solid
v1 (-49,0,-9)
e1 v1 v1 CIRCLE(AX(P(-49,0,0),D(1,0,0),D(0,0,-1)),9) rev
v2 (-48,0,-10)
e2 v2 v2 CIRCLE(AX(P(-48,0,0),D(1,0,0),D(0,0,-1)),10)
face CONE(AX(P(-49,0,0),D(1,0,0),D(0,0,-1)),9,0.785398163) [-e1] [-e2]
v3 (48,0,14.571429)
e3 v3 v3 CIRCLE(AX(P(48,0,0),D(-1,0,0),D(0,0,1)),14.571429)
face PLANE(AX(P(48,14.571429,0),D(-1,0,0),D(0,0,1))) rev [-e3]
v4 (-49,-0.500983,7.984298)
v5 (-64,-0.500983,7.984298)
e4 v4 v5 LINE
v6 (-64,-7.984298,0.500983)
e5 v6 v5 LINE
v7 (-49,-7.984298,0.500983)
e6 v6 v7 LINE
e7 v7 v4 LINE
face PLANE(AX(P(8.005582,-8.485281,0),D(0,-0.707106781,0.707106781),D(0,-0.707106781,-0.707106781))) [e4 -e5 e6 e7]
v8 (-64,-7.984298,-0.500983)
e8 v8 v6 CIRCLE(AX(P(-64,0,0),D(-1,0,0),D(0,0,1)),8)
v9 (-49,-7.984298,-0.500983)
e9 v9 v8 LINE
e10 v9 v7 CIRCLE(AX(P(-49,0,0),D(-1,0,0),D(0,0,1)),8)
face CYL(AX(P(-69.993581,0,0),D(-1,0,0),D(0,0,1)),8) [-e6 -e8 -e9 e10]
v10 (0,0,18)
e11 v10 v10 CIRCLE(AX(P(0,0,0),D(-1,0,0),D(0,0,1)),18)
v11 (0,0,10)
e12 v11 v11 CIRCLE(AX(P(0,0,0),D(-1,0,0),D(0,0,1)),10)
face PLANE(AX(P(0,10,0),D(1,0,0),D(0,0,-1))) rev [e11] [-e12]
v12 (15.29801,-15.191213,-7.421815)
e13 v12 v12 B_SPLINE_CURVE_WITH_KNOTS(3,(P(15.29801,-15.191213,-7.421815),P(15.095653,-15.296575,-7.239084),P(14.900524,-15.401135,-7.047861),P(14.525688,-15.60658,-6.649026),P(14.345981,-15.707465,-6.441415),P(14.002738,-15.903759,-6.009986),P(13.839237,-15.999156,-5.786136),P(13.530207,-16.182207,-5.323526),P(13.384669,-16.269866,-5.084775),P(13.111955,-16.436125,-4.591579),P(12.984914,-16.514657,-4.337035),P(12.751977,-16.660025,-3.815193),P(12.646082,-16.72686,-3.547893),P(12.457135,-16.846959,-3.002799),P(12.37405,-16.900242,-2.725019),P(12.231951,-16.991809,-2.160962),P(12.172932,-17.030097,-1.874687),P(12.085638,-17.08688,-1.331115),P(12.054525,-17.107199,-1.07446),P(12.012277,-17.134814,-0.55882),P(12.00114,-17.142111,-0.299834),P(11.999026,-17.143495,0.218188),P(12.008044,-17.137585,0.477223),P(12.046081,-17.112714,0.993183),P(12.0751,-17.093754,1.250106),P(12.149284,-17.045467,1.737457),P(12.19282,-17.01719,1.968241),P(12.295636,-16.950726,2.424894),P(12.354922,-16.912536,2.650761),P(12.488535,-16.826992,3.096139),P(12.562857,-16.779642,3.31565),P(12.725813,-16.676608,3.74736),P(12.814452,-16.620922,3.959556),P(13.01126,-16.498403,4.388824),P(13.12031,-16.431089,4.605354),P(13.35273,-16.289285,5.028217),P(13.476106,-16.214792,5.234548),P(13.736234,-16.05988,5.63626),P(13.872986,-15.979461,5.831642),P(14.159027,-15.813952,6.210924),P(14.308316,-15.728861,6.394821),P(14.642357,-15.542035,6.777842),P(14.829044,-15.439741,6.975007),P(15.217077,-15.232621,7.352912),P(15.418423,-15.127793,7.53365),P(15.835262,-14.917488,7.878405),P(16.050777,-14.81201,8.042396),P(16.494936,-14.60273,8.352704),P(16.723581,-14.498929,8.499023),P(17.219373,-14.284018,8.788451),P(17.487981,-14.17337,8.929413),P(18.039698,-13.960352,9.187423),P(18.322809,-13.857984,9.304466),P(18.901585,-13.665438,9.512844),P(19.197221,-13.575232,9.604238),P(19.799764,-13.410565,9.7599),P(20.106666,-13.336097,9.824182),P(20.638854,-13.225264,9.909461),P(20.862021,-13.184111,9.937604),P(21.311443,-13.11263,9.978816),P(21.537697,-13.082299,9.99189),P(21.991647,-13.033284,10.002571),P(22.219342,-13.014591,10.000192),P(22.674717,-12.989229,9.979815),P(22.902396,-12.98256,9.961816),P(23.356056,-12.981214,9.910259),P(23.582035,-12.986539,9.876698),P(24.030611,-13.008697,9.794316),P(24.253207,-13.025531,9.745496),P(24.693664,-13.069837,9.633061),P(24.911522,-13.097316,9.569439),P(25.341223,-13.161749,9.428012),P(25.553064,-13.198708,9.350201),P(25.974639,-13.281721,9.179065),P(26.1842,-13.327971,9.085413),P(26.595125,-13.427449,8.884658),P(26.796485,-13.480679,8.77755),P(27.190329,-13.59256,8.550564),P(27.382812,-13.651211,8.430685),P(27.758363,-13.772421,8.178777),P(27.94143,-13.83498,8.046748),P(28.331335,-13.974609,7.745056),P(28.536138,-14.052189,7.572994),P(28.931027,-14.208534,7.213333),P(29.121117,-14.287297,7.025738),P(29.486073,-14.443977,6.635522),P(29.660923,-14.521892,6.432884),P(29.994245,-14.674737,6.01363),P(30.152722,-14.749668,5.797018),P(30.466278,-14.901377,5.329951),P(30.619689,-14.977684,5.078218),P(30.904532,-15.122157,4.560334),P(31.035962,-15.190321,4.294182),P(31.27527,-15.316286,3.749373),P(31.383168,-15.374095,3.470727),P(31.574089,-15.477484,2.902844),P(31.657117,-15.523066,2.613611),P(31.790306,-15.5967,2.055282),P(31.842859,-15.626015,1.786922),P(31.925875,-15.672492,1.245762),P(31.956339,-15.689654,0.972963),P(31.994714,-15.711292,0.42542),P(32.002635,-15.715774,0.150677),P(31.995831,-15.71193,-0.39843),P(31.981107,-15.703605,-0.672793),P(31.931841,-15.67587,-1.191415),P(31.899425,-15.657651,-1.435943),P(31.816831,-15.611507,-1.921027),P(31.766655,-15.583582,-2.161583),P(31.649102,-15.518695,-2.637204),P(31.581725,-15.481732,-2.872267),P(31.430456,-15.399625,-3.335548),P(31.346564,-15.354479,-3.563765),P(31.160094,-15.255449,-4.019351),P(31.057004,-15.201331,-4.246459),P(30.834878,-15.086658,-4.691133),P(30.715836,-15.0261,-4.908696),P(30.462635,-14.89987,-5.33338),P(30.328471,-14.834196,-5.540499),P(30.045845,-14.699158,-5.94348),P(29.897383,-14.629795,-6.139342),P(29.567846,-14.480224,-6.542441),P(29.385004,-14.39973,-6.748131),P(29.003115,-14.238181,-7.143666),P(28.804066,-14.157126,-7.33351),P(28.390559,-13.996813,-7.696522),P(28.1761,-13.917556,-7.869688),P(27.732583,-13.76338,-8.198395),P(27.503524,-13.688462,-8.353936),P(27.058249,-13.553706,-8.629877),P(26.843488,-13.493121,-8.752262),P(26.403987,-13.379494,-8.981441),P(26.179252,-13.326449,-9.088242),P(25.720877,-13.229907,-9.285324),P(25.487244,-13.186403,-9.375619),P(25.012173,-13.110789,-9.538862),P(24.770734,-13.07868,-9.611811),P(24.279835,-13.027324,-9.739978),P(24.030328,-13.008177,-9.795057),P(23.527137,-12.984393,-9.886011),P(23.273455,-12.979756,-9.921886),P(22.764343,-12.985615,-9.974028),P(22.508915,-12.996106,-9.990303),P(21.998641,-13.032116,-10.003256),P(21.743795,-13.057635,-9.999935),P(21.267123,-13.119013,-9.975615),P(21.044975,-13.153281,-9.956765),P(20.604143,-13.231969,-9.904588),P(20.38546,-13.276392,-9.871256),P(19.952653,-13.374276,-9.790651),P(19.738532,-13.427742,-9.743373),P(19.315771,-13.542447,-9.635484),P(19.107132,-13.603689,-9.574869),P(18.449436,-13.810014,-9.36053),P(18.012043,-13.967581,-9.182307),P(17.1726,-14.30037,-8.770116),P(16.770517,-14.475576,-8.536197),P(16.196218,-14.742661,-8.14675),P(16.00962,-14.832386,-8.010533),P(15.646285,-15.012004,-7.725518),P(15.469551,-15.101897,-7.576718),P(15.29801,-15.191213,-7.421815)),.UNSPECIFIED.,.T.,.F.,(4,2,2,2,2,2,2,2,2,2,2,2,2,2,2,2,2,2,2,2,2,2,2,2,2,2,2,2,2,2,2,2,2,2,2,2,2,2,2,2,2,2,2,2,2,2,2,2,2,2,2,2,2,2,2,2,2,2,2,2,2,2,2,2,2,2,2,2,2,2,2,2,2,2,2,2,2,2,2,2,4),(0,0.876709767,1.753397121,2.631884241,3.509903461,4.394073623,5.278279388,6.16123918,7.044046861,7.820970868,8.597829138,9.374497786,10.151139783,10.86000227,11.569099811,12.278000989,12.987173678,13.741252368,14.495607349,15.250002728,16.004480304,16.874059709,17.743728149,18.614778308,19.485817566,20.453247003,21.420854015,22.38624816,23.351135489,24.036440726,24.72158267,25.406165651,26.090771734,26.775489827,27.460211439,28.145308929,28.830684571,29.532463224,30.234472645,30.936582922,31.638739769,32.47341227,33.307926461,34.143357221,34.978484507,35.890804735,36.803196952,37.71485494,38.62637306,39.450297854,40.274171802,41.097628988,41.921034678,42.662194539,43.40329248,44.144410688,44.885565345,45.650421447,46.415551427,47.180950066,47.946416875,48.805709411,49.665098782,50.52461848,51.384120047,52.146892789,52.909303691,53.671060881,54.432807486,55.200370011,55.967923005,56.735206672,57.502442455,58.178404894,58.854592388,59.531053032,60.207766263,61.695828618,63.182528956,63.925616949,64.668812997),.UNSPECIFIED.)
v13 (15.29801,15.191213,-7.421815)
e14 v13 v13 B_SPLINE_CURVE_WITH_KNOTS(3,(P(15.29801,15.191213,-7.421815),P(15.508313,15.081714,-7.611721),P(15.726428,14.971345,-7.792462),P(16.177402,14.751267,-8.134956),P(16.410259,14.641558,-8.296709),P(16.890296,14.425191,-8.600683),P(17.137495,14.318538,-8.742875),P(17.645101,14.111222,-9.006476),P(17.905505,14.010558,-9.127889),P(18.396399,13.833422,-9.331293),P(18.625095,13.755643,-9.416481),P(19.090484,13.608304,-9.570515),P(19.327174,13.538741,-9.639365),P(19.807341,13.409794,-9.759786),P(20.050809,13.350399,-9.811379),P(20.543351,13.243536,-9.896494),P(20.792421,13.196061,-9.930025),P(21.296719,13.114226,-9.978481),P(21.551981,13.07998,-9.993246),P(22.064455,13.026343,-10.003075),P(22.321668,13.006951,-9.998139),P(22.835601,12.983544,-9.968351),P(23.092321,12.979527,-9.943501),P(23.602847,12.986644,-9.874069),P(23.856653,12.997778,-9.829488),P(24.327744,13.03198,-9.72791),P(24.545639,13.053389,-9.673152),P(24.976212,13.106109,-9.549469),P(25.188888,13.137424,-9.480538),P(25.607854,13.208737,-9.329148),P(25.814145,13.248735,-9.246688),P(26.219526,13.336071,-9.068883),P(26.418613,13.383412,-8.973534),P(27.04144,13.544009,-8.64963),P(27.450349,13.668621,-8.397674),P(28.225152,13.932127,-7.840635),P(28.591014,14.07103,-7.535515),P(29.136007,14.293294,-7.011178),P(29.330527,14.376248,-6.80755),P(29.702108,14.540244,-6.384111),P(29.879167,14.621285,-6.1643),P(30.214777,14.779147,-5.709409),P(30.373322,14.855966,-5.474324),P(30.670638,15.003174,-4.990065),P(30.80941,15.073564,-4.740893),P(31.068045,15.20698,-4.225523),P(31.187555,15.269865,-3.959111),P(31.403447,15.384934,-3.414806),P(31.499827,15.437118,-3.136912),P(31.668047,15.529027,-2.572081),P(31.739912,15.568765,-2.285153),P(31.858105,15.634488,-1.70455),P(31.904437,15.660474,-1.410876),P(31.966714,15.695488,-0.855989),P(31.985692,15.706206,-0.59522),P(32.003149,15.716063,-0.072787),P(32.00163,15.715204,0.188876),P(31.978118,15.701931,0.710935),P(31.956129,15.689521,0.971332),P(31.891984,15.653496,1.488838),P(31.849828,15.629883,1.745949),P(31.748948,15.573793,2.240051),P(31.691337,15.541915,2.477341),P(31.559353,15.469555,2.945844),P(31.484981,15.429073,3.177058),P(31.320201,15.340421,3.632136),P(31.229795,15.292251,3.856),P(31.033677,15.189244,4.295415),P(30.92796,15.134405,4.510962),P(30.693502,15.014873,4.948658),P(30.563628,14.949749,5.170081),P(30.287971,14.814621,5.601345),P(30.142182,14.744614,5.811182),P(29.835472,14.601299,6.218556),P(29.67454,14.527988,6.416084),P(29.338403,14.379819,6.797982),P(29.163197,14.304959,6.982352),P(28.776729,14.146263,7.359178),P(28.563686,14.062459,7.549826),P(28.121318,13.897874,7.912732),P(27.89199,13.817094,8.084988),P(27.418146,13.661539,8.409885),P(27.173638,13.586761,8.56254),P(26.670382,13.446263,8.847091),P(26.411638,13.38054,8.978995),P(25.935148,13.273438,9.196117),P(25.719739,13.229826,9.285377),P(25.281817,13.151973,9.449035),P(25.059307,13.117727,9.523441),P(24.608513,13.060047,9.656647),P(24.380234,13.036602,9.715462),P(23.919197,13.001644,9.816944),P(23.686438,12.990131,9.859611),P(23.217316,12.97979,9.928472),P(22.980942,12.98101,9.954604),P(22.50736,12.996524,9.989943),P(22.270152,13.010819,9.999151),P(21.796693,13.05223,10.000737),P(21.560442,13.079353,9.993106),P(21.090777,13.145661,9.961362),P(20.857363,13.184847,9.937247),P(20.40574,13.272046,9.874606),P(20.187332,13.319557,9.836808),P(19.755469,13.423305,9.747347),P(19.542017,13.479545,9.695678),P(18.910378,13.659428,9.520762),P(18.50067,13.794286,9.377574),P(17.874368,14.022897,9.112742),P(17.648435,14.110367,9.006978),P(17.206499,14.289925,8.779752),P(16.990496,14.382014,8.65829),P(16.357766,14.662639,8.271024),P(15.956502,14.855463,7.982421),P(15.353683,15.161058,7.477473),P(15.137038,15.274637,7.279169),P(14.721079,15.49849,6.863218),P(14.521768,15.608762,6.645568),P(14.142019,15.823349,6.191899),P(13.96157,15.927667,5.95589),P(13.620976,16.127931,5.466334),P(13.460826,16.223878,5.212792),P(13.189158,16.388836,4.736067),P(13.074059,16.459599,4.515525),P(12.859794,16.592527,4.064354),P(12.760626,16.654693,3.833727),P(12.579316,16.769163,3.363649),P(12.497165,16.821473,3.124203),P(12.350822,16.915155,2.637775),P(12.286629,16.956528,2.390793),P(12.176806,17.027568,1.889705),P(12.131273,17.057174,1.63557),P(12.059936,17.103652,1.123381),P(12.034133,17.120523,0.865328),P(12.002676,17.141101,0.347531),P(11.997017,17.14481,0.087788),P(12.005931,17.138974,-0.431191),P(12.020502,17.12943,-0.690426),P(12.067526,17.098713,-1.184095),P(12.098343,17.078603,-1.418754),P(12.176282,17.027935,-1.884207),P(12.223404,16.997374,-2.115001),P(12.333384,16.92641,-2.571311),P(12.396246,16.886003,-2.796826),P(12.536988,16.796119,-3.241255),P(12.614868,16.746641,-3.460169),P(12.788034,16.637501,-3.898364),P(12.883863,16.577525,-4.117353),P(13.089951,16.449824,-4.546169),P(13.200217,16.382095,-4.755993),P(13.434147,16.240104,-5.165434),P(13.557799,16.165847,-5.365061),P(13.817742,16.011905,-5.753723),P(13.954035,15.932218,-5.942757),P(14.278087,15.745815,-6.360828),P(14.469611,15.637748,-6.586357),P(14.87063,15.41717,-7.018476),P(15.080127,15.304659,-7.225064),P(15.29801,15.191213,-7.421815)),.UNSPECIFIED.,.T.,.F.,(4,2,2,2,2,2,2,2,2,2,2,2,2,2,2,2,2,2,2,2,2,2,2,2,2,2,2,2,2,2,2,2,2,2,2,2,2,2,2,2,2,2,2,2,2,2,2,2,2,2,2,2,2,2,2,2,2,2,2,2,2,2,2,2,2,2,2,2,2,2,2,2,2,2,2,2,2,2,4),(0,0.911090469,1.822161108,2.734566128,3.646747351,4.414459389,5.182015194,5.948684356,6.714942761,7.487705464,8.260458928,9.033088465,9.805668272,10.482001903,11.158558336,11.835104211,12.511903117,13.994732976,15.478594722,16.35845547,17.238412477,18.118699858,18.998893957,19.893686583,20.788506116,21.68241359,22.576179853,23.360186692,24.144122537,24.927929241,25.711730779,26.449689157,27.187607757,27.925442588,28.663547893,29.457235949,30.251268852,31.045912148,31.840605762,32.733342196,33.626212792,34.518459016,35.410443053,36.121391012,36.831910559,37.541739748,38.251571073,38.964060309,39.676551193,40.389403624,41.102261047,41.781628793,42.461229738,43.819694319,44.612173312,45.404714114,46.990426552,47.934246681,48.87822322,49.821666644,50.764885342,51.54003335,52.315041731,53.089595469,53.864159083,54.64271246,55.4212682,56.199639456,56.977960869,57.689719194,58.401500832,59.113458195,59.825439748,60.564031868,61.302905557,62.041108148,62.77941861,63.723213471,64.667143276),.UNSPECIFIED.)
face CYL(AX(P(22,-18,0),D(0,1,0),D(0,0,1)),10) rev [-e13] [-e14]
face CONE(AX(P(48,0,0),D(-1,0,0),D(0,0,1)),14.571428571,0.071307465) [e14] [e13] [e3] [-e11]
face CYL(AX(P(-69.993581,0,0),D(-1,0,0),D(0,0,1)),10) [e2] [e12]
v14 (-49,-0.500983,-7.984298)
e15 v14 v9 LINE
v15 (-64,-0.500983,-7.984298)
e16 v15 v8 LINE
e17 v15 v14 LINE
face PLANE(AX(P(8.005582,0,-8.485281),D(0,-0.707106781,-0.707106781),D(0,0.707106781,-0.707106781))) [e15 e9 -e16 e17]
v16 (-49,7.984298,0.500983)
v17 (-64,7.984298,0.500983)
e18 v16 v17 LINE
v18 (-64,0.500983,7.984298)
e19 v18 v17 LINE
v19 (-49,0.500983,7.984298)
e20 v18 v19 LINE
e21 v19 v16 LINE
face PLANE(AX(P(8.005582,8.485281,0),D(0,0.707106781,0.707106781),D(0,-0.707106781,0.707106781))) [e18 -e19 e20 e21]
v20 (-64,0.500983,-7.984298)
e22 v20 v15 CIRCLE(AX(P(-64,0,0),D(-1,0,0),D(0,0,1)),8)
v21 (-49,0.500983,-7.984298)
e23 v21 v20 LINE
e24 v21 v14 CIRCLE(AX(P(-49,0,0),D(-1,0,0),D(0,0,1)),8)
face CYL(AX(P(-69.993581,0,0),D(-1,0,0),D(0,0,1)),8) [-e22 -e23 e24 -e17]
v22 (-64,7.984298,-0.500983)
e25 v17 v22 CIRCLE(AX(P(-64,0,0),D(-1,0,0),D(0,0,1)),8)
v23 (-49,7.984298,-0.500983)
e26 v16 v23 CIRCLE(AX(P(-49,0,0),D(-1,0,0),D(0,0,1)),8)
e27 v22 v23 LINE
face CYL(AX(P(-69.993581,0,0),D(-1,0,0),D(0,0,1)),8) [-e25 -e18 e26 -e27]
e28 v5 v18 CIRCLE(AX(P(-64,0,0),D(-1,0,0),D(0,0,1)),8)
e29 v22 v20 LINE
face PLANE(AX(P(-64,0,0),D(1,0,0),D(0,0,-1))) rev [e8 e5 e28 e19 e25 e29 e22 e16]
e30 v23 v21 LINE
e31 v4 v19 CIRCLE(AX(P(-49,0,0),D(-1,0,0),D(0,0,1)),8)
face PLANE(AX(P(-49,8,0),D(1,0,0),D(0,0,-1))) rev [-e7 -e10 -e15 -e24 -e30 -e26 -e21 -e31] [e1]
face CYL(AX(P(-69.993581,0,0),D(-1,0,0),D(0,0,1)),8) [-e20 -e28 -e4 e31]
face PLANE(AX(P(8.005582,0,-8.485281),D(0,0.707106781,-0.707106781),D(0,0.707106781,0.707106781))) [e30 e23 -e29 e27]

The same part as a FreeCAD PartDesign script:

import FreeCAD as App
import Part
import Sketcher

V = App.Vector
Q = App.Units.Quantity


def edges_at(feature, points):
    """Names of the edges that pass closest to the given points."""
    edges = feature.Shape.Edges
    near = lambda p: min(range(len(edges)), key=lambda i: edges[i].distToShape(Part.Vertex(*p))[0])
    return sorted({f"Edge{near(p) + 1}" for p in points})

doc = App.newDocument("Part")
body = doc.addObject("PartDesign::Body", "Body")

# Sketch on XY plane
sketch1 = body.newObject("Sketcher::SketchObject", "Sketch")
sketch1.AttachmentSupport = (doc.getObject("XY_Plane"), [""])
sketch1.MapMode = "FlatFace"
sketch1.addGeometry([
    Part.LineSegment(V(-64, 8, 0), V(-64, 0, 0)),  # 0
    Part.LineSegment(V(-64, 0, 0), V(48, 0, 0)),  # 1
    Part.LineSegment(V(48, 0, 0), V(48, 14.571429, 0)),  # 2
    Part.LineSegment(V(48, 14.571429, 0), V(0, 18, 0)),  # 3
    Part.LineSegment(V(0, 18, 0), V(0, 10, 0)),  # 4
    Part.LineSegment(V(0, 10, 0), V(-49, 10, 0)),  # 5
    Part.LineSegment(V(-49, 10, 0), V(-49, 8, 0)),  # 6
    Part.LineSegment(V(-49, 8, 0), V(-64, 8, 0)),  # 7
], False)
sketch1.addConstraint([
    Sketcher.Constraint("Coincident", 0, 2, 1, 1),
    Sketcher.Constraint("Coincident", 1, 2, 2, 1),
    Sketcher.Constraint("Coincident", 2, 2, 3, 1),
    Sketcher.Constraint("Coincident", 3, 2, 4, 1),
    Sketcher.Constraint("Coincident", 4, 2, 5, 1),
    Sketcher.Constraint("Coincident", 5, 2, 6, 1),
    Sketcher.Constraint("Coincident", 6, 2, 7, 1),
    Sketcher.Constraint("Coincident", 7, 2, 0, 1),
    Sketcher.Constraint("Vertical", 0),
    Sketcher.Constraint("Horizontal", 1),
    Sketcher.Constraint("Vertical", 2),
    Sketcher.Constraint("Vertical", 4),
    Sketcher.Constraint("Horizontal", 5),
    Sketcher.Constraint("Vertical", 6),
    Sketcher.Constraint("Horizontal", 7),
    Sketcher.Constraint("PointOnObject", 0, 2, -1),
    Sketcher.Constraint("PointOnObject", 3, 2, -2),
    Sketcher.Constraint("Equal", 0, 4),
    Sketcher.Constraint("DistanceX", 1, 1, 1, 2, Q("112 mm")),
    Sketcher.Constraint("DistanceX", 5, 2, 5, 1, Q("49 mm")),
    Sketcher.Constraint("DistanceX", 7, 2, 7, 1, Q("15 mm")),
    Sketcher.Constraint("DistanceY", 0, 2, 0, 1, Q("8 mm")),
    Sketcher.Constraint("DistanceY", 6, 2, 6, 1, Q("2 mm")),
    Sketcher.Constraint("DistanceY", 2, 1, 2, 2, Q("14.571429 mm")),
])
revolution = body.newObject("PartDesign::Revolution", "Revolution")
revolution.Profile = sketch1
revolution.ReferenceAxis = (sketch1, ["H_Axis"])
revolution.Angle = 360

# Sketch on XZ plane
sketch2 = body.newObject("Sketcher::SketchObject", "Sketch001")
sketch2.AttachmentSupport = (doc.getObject("XZ_Plane"), [""])
sketch2.MapMode = "FlatFace"
sketch2.addGeometry(Part.Circle(V(22, 0, 0), V(0, 0, 1), 10), False)
sketch2.addConstraint([
    Sketcher.Constraint("PointOnObject", 0, 3, -1),
    Sketcher.Constraint("Diameter", 0, Q("20 mm")),
    Sketcher.Constraint("DistanceX", -1, 1, 0, 3, Q("22 mm")),
])
pocket1 = body.newObject("PartDesign::Pocket", "Pocket")
pocket1.Profile = sketch2
pocket1.Type = "ThroughAll"
pocket1.Midplane = True

# Sketch on YZ plane
sketch3 = body.newObject("Sketcher::SketchObject", "Sketch002")
sketch3.AttachmentSupport = (doc.getObject("YZ_Plane"), [""])
sketch3.MapMode = "FlatFace"
sketch3.AttachmentOffset = App.Placement(V(0, 0, -64), App.Rotation())
sketch3.addGeometry([
    Part.LineSegment(V(31.303, -31.303, 0), V(-31.303, -31.303, 0)),  # 0
    Part.LineSegment(V(-31.303, -31.303, 0), V(-31.303, 31.303, 0)),  # 1
    Part.LineSegment(V(-31.303, 31.303, 0), V(31.303, 31.303, 0)),  # 2
    Part.LineSegment(V(31.303, 31.303, 0), V(31.303, -31.303, 0)),  # 3
    Part.LineSegment(V(-8.485281, 0, 0), V(0, -8.485281, 0)),  # 4
    Part.LineSegment(V(0, -8.485281, 0), V(8.485281, 0, 0)),  # 5
    Part.LineSegment(V(8.485281, 0, 0), V(0, 8.485281, 0)),  # 6
    Part.LineSegment(V(0, 8.485281, 0), V(-8.485281, 0, 0)),  # 7
], False)
sketch3.addConstraint([
    Sketcher.Constraint("Coincident", 0, 2, 1, 1),
    Sketcher.Constraint("Coincident", 1, 2, 2, 1),
    Sketcher.Constraint("Coincident", 2, 2, 3, 1),
    Sketcher.Constraint("Coincident", 3, 2, 0, 1),
    Sketcher.Constraint("Coincident", 4, 2, 5, 1),
    Sketcher.Constraint("Coincident", 5, 2, 6, 1),
    Sketcher.Constraint("Coincident", 6, 2, 7, 1),
    Sketcher.Constraint("Coincident", 7, 2, 4, 1),
    Sketcher.Constraint("Horizontal", 0),
    Sketcher.Constraint("Vertical", 1),
    Sketcher.Constraint("Horizontal", 2),
    Sketcher.Constraint("Vertical", 3),
    Sketcher.Constraint("Symmetric", 0, 2, 2, 2, -1, 1),
    Sketcher.Constraint("Symmetric", 4, 2, 6, 2, -1, 1),
    Sketcher.Constraint("Symmetric", 5, 2, 7, 2, -1, 1),
    Sketcher.Constraint("PointOnObject", 4, 2, -2),
    Sketcher.Constraint("PointOnObject", 5, 2, -1),
    Sketcher.Constraint("Perpendicular", 4, 5),
    Sketcher.Constraint("Equal", 2, 1),
    Sketcher.Constraint("Distance", 4, Q("12 mm")),
    Sketcher.Constraint("DistanceX", 0, 2, 0, 1, Q("62.606 mm")),
])
pocket2 = body.newObject("PartDesign::Pocket", "Pocket001")
pocket2.Profile = sketch3
pocket2.Length = 15
pocket2.Reversed = True
doc.recompute()

chamfer = body.newObject("PartDesign::Chamfer", "Chamfer")
chamfer.Base = (pocket2, edges_at(pocket2, [(-49, 0, -10)]))
chamfer.Size = 1

doc.recompute()
